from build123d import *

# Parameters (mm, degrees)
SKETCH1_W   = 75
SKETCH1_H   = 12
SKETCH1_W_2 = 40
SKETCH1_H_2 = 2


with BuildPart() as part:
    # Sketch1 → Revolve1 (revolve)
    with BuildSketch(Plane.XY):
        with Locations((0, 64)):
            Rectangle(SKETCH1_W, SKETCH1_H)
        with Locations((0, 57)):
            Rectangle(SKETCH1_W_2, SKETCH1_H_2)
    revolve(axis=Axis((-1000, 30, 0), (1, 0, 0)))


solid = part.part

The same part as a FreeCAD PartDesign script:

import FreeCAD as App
import Part
import Sketcher
from FreeCAD import Vector


def add_polygon(sketch, points):
    """Adds a closed chain of lines whose ends are joined by coincident constraints."""
    first, n = sketch.GeometryCount, len(points)
    for a, b in zip(points, points[1:] + points[:1]):
        sketch.addGeometry(Part.LineSegment(App.Vector(*a, 0), App.Vector(*b, 0)), False)
    for i in range(n):
        sketch.addConstraint(Sketcher.Constraint("Coincident", first + i, 2, first + (i + 1) % n, 1))

doc = App.newDocument("Part")
body = doc.addObject("PartDesign::Body", "Body")

# Sketch on XY plane
sketch1 = body.newObject("Sketcher::SketchObject", "Sketch")
sketch1.AttachmentSupport = (doc.getObject("XY_Plane"), [""])
sketch1.MapMode = "FlatFace"
add_polygon(sketch1, [(-37.5, 70), (-37.5, 58), (-20, 58), (-20, 56), (20, 56), (20, 58), (37.5, 58), (37.5, 70)])  # lines 0-7
sketch1.addGeometry(Part.LineSegment(Vector(-37.5, 30, 0), Vector(37.5, 30, 0)), True)  # axis
sketch1.addConstraint([
    Sketcher.Constraint("Vertical", 0),
    Sketcher.Constraint("Horizontal", 1),
    Sketcher.Constraint("Vertical", 2),
    Sketcher.Constraint("Horizontal", 3),
    Sketcher.Constraint("Vertical", 4),
    Sketcher.Constraint("Horizontal", 5),
    Sketcher.Constraint("Vertical", 6),
    Sketcher.Constraint("Horizontal", 7),
    Sketcher.Constraint("Horizontal", 8),
    Sketcher.Constraint("Symmetric", 1, 2, 4, 2, -2),
    Sketcher.Constraint("Vertical", 7, 2, 8, 1),
    Sketcher.Constraint("Vertical", 6, 2, 8, 2),
    Sketcher.Constraint("Equal", 1, 5),
    Sketcher.Constraint("DistanceX", 3, 1, 3, 2, 40.0),
    Sketcher.Constraint("DistanceX", 7, 2, 7, 1, 75.0),
    Sketcher.Constraint("DistanceY", 0, 2, 0, 1, 12.0),
    Sketcher.Constraint("DistanceY", 2, 2, 2, 1, 2.0),
    Sketcher.Constraint("DistanceY", -1, 1, 0, 2, 58.0),
    Sketcher.Constraint("DistanceY", -1, 1, 8, 1, 30.0),
])
revolution = body.newObject("PartDesign::Revolution", "Revolution")
revolution.Profile = sketch1
revolution.ReferenceAxis = (sketch1, ["Axis0"])
revolution.Angle = 360

doc.recompute()
